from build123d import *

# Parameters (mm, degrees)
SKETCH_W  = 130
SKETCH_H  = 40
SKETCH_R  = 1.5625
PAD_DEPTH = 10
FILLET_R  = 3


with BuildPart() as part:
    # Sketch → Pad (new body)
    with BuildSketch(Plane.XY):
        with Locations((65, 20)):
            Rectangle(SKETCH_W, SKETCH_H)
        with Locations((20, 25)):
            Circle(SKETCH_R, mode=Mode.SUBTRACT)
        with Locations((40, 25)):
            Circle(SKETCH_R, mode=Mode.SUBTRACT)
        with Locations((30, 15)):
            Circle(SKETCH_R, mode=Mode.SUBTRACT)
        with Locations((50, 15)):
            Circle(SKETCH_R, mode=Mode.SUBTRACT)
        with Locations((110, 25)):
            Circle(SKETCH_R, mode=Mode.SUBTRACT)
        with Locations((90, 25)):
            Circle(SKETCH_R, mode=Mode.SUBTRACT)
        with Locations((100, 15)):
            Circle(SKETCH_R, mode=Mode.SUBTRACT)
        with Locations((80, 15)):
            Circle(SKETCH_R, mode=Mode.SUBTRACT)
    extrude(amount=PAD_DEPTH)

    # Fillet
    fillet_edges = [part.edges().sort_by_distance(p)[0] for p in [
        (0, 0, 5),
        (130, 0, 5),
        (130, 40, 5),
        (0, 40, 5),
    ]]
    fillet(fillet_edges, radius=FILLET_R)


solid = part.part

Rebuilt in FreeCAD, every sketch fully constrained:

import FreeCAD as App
import Part
import Sketcher


def edges_at(feature, points):
    """Names of the edges that pass closest to the given points."""
    edges = feature.Shape.Edges
    near = lambda p: min(range(len(edges)), key=lambda i: edges[i].distToShape(Part.Vertex(*p))[0])
    return sorted({f"Edge{near(p) + 1}" for p in points})


def add_polygon(sketch, points):
    """Adds a closed chain of lines whose ends are joined by coincident constraints."""
    first, n = sketch.GeometryCount, len(points)
    for a, b in zip(points, points[1:] + points[:1]):
        sketch.addGeometry(Part.LineSegment(App.Vector(*a, 0), App.Vector(*b, 0)), False)
    for i in range(n):
        sketch.addConstraint(Sketcher.Constraint("Coincident", first + i, 2, first + (i + 1) % n, 1))

doc = App.newDocument("Part")
body = doc.addObject("PartDesign::Body", "Body")

# Sketch on XY plane
sketch1 = doc.addObject("Sketcher::SketchObject", "Sketch")
body.addObject(sketch1)
sketch1.AttachmentSupport = (doc.XY_Plane, [""])
sketch1.MapMode = "FlatFace"
add_polygon(sketch1, [(0, 40), (0, 0), (130, 0), (130, 40)])  # lines 0-3
sketch1.addGeometry(Part.Circle(App.Vector(30, 15, 0), App.Vector(0, 0, 1), 1.5625), False)  # 4
sketch1.addGeometry(Part.Circle(App.Vector(50, 15, 0), App.Vector(0, 0, 1), 1.5625), False)  # 5
sketch1.addGeometry(Part.Circle(App.Vector(80, 15, 0), App.Vector(0, 0, 1), 1.5625), False)  # 6
sketch1.addGeometry(Part.Circle(App.Vector(100, 15, 0), App.Vector(0, 0, 1), 1.5625), False)  # 7
sketch1.addGeometry(Part.Circle(App.Vector(20, 25, 0), App.Vector(0, 0, 1), 1.5625), False)  # 8
sketch1.addGeometry(Part.Circle(App.Vector(40, 25, 0), App.Vector(0, 0, 1), 1.5625), False)  # 9
sketch1.addGeometry(Part.Circle(App.Vector(90, 25, 0), App.Vector(0, 0, 1), 1.5625), False)  # 10
sketch1.addGeometry(Part.Circle(App.Vector(110, 25, 0), App.Vector(0, 0, 1), 1.5625), False)  # 11
sketch1.addConstraint(Sketcher.Constraint("Vertical", 0))
sketch1.addConstraint(Sketcher.Constraint("Horizontal", 1))
sketch1.addConstraint(Sketcher.Constraint("Vertical", 2))
sketch1.addConstraint(Sketcher.Constraint("Horizontal", 3))
sketch1.addConstraint(Sketcher.Constraint("Coincident", 0, 2, -1, 1))
sketch1.addConstraint(Sketcher.Constraint("Equal", 4, 5))
sketch1.addConstraint(Sketcher.Constraint("Equal", 5, 6))
sketch1.addConstraint(Sketcher.Constraint("Equal", 6, 7))
sketch1.addConstraint(Sketcher.Constraint("Equal", 7, 8))
sketch1.addConstraint(Sketcher.Constraint("Equal", 8, 9))
sketch1.addConstraint(Sketcher.Constraint("Equal", 9, 10))
sketch1.addConstraint(Sketcher.Constraint("Equal", 10, 11))
sketch1.addConstraint(Sketcher.Constraint("Horizontal", 4, 3, 5, 3))
sketch1.addConstraint(Sketcher.Constraint("Horizontal", 5, 3, 6, 3))
sketch1.addConstraint(Sketcher.Constraint("Horizontal", 6, 3, 7, 3))
sketch1.addConstraint(Sketcher.Constraint("Horizontal", 8, 3, 9, 3))
sketch1.addConstraint(Sketcher.Constraint("Horizontal", 9, 3, 10, 3))
sketch1.addConstraint(Sketcher.Constraint("Horizontal", 10, 3, 11, 3))
sketch1.addConstraint(Sketcher.Constraint("DistanceX", 1, 1, 1, 2, 130.0))
sketch1.addConstraint(Sketcher.Constraint("DistanceY", 0, 2, 0, 1, 40.0))
sketch1.addConstraint(Sketcher.Constraint("Diameter", 4, 3.125))
sketch1.addConstraint(Sketcher.Constraint("DistanceX", -1, 1, 4, 3, 30.0))
sketch1.addConstraint(Sketcher.Constraint("DistanceY", -1, 1, 4, 3, 15.0))
sketch1.addConstraint(Sketcher.Constraint("DistanceX", -1, 1, 5, 3, 50.0))
sketch1.addConstraint(Sketcher.Constraint("DistanceX", -1, 1, 6, 3, 80.0))
sketch1.addConstraint(Sketcher.Constraint("DistanceX", -1, 1, 7, 3, 100.0))
sketch1.addConstraint(Sketcher.Constraint("DistanceX", -1, 1, 8, 3, 20.0))
sketch1.addConstraint(Sketcher.Constraint("DistanceY", -1, 1, 8, 3, 25.0))
sketch1.addConstraint(Sketcher.Constraint("DistanceX", -1, 1, 9, 3, 40.0))
sketch1.addConstraint(Sketcher.Constraint("DistanceX", -1, 1, 10, 3, 90.0))
sketch1.addConstraint(Sketcher.Constraint("DistanceX", -1, 1, 11, 3, 110.0))
pad1 = doc.addObject("PartDesign::Pad", "Pad")
body.addObject(pad1)
pad1.Profile = sketch1
pad1.Length = 10
doc.recompute()

fillet = doc.addObject("PartDesign::Fillet", "Fillet")
body.addObject(fillet)
fillet.Base = (pad1, edges_at(pad1, [
    (0, 0, 5),
    (130, 0, 5),
    (130, 40, 5),
    (0, 40, 5),
]))
fillet.Radius = 3

doc.recompute()
